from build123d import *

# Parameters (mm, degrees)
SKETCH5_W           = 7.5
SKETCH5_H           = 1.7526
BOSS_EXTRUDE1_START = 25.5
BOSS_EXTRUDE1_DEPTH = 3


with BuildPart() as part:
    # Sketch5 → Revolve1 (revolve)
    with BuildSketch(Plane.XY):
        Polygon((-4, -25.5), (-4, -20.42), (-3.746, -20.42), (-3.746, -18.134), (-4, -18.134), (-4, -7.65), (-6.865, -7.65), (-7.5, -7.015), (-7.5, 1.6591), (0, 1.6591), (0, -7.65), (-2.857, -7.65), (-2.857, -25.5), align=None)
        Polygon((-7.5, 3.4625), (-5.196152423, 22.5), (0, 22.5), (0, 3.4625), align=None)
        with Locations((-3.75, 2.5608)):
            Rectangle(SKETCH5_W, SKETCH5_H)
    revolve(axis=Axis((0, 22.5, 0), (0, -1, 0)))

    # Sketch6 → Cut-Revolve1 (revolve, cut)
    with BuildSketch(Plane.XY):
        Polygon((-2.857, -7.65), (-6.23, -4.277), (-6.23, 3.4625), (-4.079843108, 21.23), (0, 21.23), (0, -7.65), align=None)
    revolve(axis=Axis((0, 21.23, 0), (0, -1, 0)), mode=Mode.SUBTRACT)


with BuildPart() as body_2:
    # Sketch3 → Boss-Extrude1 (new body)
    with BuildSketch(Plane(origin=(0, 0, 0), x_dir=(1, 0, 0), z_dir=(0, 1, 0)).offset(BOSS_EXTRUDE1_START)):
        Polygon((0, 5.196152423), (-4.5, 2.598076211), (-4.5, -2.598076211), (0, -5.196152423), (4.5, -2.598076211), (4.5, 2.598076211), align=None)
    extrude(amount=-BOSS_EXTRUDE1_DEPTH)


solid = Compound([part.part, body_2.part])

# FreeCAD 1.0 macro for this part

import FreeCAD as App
import Part
import Sketcher
Q = App.Units.Quantity


def add_polygon(sketch, points):
    """Adds a closed chain of lines whose ends are joined by coincident constraints."""
    first, n = sketch.GeometryCount, len(points)
    for a, b in zip(points, points[1:] + points[:1]):
        sketch.addGeometry(Part.LineSegment(App.Vector(*a, 0), App.Vector(*b, 0)), False)
    for i in range(n):
        sketch.addConstraint(Sketcher.Constraint("Coincident", first + i, 2, first + (i + 1) % n, 1))

doc = App.newDocument("Part")
params = doc.addObject("Spreadsheet::Sheet", "Params")
for row, (alias, value) in enumerate([
    ("sketch1_height", "0.2 in"),
    ("sketch1_width", "0.01 in"),
    ("sketch1_height2", "0.09 in"),
    ("sketch1_width2", "0.045 in"),
    ("sketch1_height3", "0.069 in"),
    ("revolution_angle", "360 deg"),
    ("groove_angle", "360 deg"),
    ("pad1_length", "3 mm"),
], start=1):
    params.set(f"A{row}", alias)
    params.set(f"B{row}", "=" + value)
    params.setAlias(f"B{row}", alias)

body = doc.addObject("PartDesign::Body", "Body")
body.AllowCompound = True

# Sketch on XY plane
sketch1 = doc.addObject("Sketcher::SketchObject", "Sketch")
body.addObject(sketch1)
sketch1.AttachmentSupport = (doc.XY_Plane, [""])
sketch1.MapMode = "FlatFace"
add_polygon(sketch1, [(-4, -20.42), (-4, -25.5), (-2.86, -25.5), (-2.86, -7.65), (0, -7.65), (0, 1.66), (-7.5, 1.66), (-7.5, -7.01), (-6.87, -7.65), (-4, -7.65), (-4, -18.13), (-3.75, -18.13), (-3.75, -20.42)])  # lines 0-12
add_polygon(sketch1, [(-5.2, 22.5), (-7.5, 3.46), (0, 3.46), (0, 22.5)])  # lines 13-16
add_polygon(sketch1, [(-7.5, 3.44), (-7.5, 1.68), (0, 1.68), (0, 3.44)])  # lines 17-20
sketch1.addConstraint([
    Sketcher.Constraint("Vertical", 0),
    Sketcher.Constraint("Horizontal", 1),
    Sketcher.Constraint("Vertical", 2),
    Sketcher.Constraint("Horizontal", 3),
    Sketcher.Constraint("Vertical", 4),
    Sketcher.Constraint("Horizontal", 5),
    Sketcher.Constraint("Vertical", 6),
    Sketcher.Constraint("Horizontal", 8),
    Sketcher.Constraint("Vertical", 9),
    Sketcher.Constraint("Horizontal", 10),
    Sketcher.Constraint("Vertical", 11),
    Sketcher.Constraint("Horizontal", 12),
    Sketcher.Constraint("Horizontal", 14),
    Sketcher.Constraint("Vertical", 15),
    Sketcher.Constraint("Horizontal", 16),
    Sketcher.Constraint("Vertical", 17),
    Sketcher.Constraint("Horizontal", 18),
    Sketcher.Constraint("Vertical", 19),
    Sketcher.Constraint("Horizontal", 20),
    Sketcher.Constraint("PointOnObject", 3, 2, -2),
    Sketcher.Constraint("PointOnObject", 14, 2, -2),
    Sketcher.Constraint("PointOnObject", 18, 2, -2),
    Sketcher.Constraint("Horizontal", 3, 2, 7, 2),
    Sketcher.Constraint("Vertical", 0, 2, 8, 2),
    Sketcher.Constraint("Vertical", 6, 2, 13, 2),
    Sketcher.Constraint("Vertical", 13, 2, 17, 2),
    Sketcher.Constraint("DistanceY", 0, 2, 0, 1, Q("0.2 in")),
    Sketcher.Constraint("Angle", 7, Q("-45 deg")),
    Sketcher.Constraint("DistanceX", 10, 1, 10, 2, Q("0.01 in")),
    Sketcher.Constraint("DistanceY", 11, 2, 11, 1, Q("0.09 in")),
    Sketcher.Constraint("DistanceX", 1, 1, 1, 2, Q("0.045 in")),
    Sketcher.Constraint("DistanceY", 17, 2, 17, 1, Q("0.069 in")),
    Sketcher.Constraint("DistanceY", 17, 2, 13, 2, Q("0.07 in")),
    Sketcher.Constraint("DistanceY", 4, 2, 19, 2, Q("0.07 in")),
    Sketcher.Constraint("DistanceY", 4, 1, 4, 2, Q("0.3665 in")),
    Sketcher.Constraint("DistanceY", 6, 2, 6, 1, Q("0.3415 in")),
    Sketcher.Constraint("DistanceX", 3, 1, 3, 2, 2.857),
    Sketcher.Constraint("DistanceX", 5, 2, 5, 1, 7.5),
    Sketcher.Constraint("DistanceY", 2, 1, 2, 2, 17.85),
    Sketcher.Constraint("DistanceY", 15, 1, 15, 2, 19.0375),
    Sketcher.Constraint("DistanceY", 0, 2, -1, 1, 25.5),
    Sketcher.Constraint("DistanceX", 16, 2, 16, 1, 5.196152),
])
sketch1.setExpression("Constraints[47]", "Params.sketch1_height")
sketch1.setExpression("Constraints[49]", "Params.sketch1_width")
sketch1.setExpression("Constraints[50]", "Params.sketch1_height2")
sketch1.setExpression("Constraints[51]", "Params.sketch1_width2")
sketch1.setExpression("Constraints[52]", "Params.sketch1_height3")
revolution = doc.addObject("PartDesign::Revolution", "Revolution")
body.addObject(revolution)
revolution.Profile = sketch1
revolution.ReferenceAxis = (sketch1, ["V_Axis"])
revolution.setExpression("Angle", "Params.revolution_angle")

# Sketch on XY plane
sketch2 = doc.addObject("Sketcher::SketchObject", "Sketch001")
body.addObject(sketch2)
sketch2.AttachmentSupport = (doc.XY_Plane, [""])
sketch2.MapMode = "FlatFace"
add_polygon(sketch2, [(-6.2, -4.3), (-2.9, -7.7), (0, -7.7), (0, 21.2), (-4.1, 21.2), (-6.2, 3.5)])  # lines 0-5
sketch2.addConstraint([
    Sketcher.Constraint("Horizontal", 1),
    Sketcher.Constraint("Vertical", 2),
    Sketcher.Constraint("Horizontal", 3),
    Sketcher.Constraint("Vertical", 5),
    Sketcher.Constraint("PointOnObject", 1, 2, -2),
    Sketcher.Constraint("Angle", 0, Q("-45 deg")),
    Sketcher.Constraint("DistanceY", 0, 2, 4, 2, Q("0.4375 in")),
    Sketcher.Constraint("DistanceX", 1, 1, 1, 2, 2.857),
    Sketcher.Constraint("DistanceY", 2, 1, 2, 2, 28.88),
    Sketcher.Constraint("DistanceY", 5, 2, 5, 1, 7.7395),
    Sketcher.Constraint("DistanceY", 0, 2, -1, 1, 7.65),
    Sketcher.Constraint("Distance", 4, 17.897129),
])
groove = doc.addObject("PartDesign::Groove", "Groove")
body.addObject(groove)
groove.Profile = sketch2
groove.ReferenceAxis = (sketch2, ["V_Axis"])
groove.setExpression("Angle", "Params.groove_angle")
body2 = doc.addObject("PartDesign::Body", "Body001")

# Sketch on XZ plane
sketch3 = doc.addObject("Sketcher::SketchObject", "Sketch002")
body2.addObject(sketch3)
sketch3.AttachmentSupport = (doc.getObject("XZ_Plane001"), [""])
sketch3.MapMode = "FlatFace"
sketch3.AttachmentOffset = App.Placement(App.Vector(0, 0, -25.5), App.Rotation())
add_polygon(sketch3, [(0, -5), (-4, -3), (-4, 3), (0, 5), (4, 3), (4, -3)])  # lines 0-5
sketch3.addConstraint([
    Sketcher.Constraint("Vertical", 1),
    Sketcher.Constraint("Vertical", 4),
    Sketcher.Constraint("Symmetric", 0, 2, 3, 2, -1, 1),
    Sketcher.Constraint("Symmetric", 2, 2, 5, 2, -1, 1),
    Sketcher.Constraint("PointOnObject", 2, 2, -2),
    Sketcher.Constraint("Parallel", 2, 5),
    Sketcher.Constraint("Horizontal", 1, 2, 3, 2),
    Sketcher.Constraint("Angle", 0, Q("150 deg")),
    Sketcher.Constraint("DistanceX", 0, 2, -1, 1, 4.5),
    Sketcher.Constraint("DistanceY", 1, 1, 1, 2, 5.196152),
])
pad1 = doc.addObject("PartDesign::Pad", "Pad")
body2.addObject(pad1)
pad1.Profile = sketch3
pad1.setExpression("Length", "Params.pad1_length")

doc.recompute()
